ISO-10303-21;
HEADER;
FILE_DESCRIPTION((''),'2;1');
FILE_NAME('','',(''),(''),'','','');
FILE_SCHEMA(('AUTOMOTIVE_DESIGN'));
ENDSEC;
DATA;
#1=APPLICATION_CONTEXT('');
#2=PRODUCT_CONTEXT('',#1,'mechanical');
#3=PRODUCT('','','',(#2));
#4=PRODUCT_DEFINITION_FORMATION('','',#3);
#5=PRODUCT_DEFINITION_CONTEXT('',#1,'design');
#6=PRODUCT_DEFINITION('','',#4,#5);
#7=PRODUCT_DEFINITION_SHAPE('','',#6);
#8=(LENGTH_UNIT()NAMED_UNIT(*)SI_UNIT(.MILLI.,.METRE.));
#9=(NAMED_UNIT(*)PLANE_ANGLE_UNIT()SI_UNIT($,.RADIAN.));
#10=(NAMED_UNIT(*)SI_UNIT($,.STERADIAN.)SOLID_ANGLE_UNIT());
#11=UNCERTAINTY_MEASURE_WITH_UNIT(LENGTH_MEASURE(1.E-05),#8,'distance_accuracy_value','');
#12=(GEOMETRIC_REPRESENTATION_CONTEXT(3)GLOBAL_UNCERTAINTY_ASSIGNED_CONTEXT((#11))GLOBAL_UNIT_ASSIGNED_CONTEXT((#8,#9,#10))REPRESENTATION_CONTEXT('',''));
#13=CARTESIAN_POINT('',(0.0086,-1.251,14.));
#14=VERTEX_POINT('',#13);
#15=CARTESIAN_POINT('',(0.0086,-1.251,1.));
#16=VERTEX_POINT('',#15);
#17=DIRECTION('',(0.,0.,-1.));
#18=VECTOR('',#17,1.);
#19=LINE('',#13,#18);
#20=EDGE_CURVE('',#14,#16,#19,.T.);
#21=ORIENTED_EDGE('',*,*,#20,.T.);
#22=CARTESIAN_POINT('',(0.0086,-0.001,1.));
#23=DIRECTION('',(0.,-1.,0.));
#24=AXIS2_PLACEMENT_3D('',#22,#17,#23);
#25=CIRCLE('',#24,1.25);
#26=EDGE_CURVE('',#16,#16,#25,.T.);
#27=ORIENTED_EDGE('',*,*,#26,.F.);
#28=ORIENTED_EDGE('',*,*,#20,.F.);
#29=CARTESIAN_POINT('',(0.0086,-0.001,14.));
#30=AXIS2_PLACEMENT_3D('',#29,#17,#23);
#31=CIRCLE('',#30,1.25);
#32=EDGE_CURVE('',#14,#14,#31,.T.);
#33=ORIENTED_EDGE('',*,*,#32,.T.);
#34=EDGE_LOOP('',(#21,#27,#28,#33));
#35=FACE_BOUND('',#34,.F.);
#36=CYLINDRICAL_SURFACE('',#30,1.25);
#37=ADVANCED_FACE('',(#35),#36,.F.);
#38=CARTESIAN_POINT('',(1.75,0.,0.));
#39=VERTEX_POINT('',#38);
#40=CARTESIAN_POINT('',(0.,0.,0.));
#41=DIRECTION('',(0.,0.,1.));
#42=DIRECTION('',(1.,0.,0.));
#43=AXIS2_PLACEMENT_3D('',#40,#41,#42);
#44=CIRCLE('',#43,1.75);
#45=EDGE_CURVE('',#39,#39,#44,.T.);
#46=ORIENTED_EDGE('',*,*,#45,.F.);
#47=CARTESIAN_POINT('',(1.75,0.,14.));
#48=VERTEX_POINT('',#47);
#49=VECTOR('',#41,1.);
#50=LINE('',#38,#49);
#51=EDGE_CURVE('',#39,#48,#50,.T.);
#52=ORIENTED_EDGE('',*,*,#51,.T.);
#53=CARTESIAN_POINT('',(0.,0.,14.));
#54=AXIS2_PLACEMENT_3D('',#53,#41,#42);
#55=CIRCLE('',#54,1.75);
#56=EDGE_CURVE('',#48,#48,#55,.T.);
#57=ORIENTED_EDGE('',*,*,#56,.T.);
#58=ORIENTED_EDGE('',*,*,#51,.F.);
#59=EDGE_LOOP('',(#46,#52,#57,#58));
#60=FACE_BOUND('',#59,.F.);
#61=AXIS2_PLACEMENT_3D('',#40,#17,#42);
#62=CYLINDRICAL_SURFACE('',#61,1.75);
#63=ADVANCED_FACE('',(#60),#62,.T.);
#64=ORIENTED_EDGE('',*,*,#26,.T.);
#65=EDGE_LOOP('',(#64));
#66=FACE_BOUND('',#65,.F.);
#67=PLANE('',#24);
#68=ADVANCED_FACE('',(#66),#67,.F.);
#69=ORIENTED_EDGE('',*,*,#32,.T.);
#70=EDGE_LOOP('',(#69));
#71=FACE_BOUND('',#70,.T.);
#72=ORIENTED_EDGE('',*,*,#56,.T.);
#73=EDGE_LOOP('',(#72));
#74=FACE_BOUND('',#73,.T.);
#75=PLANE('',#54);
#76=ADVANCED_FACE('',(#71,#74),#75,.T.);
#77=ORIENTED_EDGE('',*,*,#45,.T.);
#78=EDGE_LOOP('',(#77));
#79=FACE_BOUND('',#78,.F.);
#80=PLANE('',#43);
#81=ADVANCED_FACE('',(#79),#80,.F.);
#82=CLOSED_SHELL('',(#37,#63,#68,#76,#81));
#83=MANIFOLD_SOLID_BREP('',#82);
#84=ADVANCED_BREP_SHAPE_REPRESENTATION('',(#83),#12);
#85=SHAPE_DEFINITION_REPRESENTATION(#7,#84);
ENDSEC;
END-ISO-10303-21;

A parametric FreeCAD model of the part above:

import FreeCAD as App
import Part
import Sketcher

doc = App.newDocument("Part")
body = doc.addObject("PartDesign::Body", "Body")

# Sketch on XY plane
sketch1 = body.newObject("Sketcher::SketchObject", "Sketch")
sketch1.AttachmentSupport = (doc.getObject("XY_Plane"), [""])
sketch1.MapMode = "FlatFace"
sketch1.addGeometry(Part.Circle(App.Vector(0, 0, 0), App.Vector(0, 0, 1), 1.8), False)
sketch1.addConstraint([
    Sketcher.Constraint("Coincident", 0, 3, -1, 1),
    Sketcher.Constraint("Diameter", 0, 3.5),
])
pad1 = body.newObject("PartDesign::Pad", "Pad")
pad1.Profile = sketch1
pad1.Length = 14

# Sketch on XY plane
sketch2 = body.newObject("Sketcher::SketchObject", "Sketch001")
sketch2.AttachmentSupport = (doc.getObject("XY_Plane"), [""])
sketch2.MapMode = "FlatFace"
sketch2.AttachmentOffset = App.Placement(App.Vector(0, 0, 14), App.Rotation())
sketch2.addGeometry(Part.Circle(App.Vector(0, 0, 0), App.Vector(0, 0, 1), 1.2), False)
sketch2.addConstraint([
    Sketcher.Constraint("Diameter", 0, 2.5),
    Sketcher.Constraint("DistanceY", 0, 3, -1, 1, 0.001),
    Sketcher.Constraint("DistanceX", -1, 1, 0, 3, 0.0086),
])
doc.recompute()
hole = body.newObject("PartDesign::Hole", "Hole")
hole.Profile = sketch2
hole.ThreadType = "None"
hole.Diameter = 2.5
hole.DepthType = "Dimension"
hole.Depth = 13
hole.DrillPoint = "Flat"

doc.recompute()
